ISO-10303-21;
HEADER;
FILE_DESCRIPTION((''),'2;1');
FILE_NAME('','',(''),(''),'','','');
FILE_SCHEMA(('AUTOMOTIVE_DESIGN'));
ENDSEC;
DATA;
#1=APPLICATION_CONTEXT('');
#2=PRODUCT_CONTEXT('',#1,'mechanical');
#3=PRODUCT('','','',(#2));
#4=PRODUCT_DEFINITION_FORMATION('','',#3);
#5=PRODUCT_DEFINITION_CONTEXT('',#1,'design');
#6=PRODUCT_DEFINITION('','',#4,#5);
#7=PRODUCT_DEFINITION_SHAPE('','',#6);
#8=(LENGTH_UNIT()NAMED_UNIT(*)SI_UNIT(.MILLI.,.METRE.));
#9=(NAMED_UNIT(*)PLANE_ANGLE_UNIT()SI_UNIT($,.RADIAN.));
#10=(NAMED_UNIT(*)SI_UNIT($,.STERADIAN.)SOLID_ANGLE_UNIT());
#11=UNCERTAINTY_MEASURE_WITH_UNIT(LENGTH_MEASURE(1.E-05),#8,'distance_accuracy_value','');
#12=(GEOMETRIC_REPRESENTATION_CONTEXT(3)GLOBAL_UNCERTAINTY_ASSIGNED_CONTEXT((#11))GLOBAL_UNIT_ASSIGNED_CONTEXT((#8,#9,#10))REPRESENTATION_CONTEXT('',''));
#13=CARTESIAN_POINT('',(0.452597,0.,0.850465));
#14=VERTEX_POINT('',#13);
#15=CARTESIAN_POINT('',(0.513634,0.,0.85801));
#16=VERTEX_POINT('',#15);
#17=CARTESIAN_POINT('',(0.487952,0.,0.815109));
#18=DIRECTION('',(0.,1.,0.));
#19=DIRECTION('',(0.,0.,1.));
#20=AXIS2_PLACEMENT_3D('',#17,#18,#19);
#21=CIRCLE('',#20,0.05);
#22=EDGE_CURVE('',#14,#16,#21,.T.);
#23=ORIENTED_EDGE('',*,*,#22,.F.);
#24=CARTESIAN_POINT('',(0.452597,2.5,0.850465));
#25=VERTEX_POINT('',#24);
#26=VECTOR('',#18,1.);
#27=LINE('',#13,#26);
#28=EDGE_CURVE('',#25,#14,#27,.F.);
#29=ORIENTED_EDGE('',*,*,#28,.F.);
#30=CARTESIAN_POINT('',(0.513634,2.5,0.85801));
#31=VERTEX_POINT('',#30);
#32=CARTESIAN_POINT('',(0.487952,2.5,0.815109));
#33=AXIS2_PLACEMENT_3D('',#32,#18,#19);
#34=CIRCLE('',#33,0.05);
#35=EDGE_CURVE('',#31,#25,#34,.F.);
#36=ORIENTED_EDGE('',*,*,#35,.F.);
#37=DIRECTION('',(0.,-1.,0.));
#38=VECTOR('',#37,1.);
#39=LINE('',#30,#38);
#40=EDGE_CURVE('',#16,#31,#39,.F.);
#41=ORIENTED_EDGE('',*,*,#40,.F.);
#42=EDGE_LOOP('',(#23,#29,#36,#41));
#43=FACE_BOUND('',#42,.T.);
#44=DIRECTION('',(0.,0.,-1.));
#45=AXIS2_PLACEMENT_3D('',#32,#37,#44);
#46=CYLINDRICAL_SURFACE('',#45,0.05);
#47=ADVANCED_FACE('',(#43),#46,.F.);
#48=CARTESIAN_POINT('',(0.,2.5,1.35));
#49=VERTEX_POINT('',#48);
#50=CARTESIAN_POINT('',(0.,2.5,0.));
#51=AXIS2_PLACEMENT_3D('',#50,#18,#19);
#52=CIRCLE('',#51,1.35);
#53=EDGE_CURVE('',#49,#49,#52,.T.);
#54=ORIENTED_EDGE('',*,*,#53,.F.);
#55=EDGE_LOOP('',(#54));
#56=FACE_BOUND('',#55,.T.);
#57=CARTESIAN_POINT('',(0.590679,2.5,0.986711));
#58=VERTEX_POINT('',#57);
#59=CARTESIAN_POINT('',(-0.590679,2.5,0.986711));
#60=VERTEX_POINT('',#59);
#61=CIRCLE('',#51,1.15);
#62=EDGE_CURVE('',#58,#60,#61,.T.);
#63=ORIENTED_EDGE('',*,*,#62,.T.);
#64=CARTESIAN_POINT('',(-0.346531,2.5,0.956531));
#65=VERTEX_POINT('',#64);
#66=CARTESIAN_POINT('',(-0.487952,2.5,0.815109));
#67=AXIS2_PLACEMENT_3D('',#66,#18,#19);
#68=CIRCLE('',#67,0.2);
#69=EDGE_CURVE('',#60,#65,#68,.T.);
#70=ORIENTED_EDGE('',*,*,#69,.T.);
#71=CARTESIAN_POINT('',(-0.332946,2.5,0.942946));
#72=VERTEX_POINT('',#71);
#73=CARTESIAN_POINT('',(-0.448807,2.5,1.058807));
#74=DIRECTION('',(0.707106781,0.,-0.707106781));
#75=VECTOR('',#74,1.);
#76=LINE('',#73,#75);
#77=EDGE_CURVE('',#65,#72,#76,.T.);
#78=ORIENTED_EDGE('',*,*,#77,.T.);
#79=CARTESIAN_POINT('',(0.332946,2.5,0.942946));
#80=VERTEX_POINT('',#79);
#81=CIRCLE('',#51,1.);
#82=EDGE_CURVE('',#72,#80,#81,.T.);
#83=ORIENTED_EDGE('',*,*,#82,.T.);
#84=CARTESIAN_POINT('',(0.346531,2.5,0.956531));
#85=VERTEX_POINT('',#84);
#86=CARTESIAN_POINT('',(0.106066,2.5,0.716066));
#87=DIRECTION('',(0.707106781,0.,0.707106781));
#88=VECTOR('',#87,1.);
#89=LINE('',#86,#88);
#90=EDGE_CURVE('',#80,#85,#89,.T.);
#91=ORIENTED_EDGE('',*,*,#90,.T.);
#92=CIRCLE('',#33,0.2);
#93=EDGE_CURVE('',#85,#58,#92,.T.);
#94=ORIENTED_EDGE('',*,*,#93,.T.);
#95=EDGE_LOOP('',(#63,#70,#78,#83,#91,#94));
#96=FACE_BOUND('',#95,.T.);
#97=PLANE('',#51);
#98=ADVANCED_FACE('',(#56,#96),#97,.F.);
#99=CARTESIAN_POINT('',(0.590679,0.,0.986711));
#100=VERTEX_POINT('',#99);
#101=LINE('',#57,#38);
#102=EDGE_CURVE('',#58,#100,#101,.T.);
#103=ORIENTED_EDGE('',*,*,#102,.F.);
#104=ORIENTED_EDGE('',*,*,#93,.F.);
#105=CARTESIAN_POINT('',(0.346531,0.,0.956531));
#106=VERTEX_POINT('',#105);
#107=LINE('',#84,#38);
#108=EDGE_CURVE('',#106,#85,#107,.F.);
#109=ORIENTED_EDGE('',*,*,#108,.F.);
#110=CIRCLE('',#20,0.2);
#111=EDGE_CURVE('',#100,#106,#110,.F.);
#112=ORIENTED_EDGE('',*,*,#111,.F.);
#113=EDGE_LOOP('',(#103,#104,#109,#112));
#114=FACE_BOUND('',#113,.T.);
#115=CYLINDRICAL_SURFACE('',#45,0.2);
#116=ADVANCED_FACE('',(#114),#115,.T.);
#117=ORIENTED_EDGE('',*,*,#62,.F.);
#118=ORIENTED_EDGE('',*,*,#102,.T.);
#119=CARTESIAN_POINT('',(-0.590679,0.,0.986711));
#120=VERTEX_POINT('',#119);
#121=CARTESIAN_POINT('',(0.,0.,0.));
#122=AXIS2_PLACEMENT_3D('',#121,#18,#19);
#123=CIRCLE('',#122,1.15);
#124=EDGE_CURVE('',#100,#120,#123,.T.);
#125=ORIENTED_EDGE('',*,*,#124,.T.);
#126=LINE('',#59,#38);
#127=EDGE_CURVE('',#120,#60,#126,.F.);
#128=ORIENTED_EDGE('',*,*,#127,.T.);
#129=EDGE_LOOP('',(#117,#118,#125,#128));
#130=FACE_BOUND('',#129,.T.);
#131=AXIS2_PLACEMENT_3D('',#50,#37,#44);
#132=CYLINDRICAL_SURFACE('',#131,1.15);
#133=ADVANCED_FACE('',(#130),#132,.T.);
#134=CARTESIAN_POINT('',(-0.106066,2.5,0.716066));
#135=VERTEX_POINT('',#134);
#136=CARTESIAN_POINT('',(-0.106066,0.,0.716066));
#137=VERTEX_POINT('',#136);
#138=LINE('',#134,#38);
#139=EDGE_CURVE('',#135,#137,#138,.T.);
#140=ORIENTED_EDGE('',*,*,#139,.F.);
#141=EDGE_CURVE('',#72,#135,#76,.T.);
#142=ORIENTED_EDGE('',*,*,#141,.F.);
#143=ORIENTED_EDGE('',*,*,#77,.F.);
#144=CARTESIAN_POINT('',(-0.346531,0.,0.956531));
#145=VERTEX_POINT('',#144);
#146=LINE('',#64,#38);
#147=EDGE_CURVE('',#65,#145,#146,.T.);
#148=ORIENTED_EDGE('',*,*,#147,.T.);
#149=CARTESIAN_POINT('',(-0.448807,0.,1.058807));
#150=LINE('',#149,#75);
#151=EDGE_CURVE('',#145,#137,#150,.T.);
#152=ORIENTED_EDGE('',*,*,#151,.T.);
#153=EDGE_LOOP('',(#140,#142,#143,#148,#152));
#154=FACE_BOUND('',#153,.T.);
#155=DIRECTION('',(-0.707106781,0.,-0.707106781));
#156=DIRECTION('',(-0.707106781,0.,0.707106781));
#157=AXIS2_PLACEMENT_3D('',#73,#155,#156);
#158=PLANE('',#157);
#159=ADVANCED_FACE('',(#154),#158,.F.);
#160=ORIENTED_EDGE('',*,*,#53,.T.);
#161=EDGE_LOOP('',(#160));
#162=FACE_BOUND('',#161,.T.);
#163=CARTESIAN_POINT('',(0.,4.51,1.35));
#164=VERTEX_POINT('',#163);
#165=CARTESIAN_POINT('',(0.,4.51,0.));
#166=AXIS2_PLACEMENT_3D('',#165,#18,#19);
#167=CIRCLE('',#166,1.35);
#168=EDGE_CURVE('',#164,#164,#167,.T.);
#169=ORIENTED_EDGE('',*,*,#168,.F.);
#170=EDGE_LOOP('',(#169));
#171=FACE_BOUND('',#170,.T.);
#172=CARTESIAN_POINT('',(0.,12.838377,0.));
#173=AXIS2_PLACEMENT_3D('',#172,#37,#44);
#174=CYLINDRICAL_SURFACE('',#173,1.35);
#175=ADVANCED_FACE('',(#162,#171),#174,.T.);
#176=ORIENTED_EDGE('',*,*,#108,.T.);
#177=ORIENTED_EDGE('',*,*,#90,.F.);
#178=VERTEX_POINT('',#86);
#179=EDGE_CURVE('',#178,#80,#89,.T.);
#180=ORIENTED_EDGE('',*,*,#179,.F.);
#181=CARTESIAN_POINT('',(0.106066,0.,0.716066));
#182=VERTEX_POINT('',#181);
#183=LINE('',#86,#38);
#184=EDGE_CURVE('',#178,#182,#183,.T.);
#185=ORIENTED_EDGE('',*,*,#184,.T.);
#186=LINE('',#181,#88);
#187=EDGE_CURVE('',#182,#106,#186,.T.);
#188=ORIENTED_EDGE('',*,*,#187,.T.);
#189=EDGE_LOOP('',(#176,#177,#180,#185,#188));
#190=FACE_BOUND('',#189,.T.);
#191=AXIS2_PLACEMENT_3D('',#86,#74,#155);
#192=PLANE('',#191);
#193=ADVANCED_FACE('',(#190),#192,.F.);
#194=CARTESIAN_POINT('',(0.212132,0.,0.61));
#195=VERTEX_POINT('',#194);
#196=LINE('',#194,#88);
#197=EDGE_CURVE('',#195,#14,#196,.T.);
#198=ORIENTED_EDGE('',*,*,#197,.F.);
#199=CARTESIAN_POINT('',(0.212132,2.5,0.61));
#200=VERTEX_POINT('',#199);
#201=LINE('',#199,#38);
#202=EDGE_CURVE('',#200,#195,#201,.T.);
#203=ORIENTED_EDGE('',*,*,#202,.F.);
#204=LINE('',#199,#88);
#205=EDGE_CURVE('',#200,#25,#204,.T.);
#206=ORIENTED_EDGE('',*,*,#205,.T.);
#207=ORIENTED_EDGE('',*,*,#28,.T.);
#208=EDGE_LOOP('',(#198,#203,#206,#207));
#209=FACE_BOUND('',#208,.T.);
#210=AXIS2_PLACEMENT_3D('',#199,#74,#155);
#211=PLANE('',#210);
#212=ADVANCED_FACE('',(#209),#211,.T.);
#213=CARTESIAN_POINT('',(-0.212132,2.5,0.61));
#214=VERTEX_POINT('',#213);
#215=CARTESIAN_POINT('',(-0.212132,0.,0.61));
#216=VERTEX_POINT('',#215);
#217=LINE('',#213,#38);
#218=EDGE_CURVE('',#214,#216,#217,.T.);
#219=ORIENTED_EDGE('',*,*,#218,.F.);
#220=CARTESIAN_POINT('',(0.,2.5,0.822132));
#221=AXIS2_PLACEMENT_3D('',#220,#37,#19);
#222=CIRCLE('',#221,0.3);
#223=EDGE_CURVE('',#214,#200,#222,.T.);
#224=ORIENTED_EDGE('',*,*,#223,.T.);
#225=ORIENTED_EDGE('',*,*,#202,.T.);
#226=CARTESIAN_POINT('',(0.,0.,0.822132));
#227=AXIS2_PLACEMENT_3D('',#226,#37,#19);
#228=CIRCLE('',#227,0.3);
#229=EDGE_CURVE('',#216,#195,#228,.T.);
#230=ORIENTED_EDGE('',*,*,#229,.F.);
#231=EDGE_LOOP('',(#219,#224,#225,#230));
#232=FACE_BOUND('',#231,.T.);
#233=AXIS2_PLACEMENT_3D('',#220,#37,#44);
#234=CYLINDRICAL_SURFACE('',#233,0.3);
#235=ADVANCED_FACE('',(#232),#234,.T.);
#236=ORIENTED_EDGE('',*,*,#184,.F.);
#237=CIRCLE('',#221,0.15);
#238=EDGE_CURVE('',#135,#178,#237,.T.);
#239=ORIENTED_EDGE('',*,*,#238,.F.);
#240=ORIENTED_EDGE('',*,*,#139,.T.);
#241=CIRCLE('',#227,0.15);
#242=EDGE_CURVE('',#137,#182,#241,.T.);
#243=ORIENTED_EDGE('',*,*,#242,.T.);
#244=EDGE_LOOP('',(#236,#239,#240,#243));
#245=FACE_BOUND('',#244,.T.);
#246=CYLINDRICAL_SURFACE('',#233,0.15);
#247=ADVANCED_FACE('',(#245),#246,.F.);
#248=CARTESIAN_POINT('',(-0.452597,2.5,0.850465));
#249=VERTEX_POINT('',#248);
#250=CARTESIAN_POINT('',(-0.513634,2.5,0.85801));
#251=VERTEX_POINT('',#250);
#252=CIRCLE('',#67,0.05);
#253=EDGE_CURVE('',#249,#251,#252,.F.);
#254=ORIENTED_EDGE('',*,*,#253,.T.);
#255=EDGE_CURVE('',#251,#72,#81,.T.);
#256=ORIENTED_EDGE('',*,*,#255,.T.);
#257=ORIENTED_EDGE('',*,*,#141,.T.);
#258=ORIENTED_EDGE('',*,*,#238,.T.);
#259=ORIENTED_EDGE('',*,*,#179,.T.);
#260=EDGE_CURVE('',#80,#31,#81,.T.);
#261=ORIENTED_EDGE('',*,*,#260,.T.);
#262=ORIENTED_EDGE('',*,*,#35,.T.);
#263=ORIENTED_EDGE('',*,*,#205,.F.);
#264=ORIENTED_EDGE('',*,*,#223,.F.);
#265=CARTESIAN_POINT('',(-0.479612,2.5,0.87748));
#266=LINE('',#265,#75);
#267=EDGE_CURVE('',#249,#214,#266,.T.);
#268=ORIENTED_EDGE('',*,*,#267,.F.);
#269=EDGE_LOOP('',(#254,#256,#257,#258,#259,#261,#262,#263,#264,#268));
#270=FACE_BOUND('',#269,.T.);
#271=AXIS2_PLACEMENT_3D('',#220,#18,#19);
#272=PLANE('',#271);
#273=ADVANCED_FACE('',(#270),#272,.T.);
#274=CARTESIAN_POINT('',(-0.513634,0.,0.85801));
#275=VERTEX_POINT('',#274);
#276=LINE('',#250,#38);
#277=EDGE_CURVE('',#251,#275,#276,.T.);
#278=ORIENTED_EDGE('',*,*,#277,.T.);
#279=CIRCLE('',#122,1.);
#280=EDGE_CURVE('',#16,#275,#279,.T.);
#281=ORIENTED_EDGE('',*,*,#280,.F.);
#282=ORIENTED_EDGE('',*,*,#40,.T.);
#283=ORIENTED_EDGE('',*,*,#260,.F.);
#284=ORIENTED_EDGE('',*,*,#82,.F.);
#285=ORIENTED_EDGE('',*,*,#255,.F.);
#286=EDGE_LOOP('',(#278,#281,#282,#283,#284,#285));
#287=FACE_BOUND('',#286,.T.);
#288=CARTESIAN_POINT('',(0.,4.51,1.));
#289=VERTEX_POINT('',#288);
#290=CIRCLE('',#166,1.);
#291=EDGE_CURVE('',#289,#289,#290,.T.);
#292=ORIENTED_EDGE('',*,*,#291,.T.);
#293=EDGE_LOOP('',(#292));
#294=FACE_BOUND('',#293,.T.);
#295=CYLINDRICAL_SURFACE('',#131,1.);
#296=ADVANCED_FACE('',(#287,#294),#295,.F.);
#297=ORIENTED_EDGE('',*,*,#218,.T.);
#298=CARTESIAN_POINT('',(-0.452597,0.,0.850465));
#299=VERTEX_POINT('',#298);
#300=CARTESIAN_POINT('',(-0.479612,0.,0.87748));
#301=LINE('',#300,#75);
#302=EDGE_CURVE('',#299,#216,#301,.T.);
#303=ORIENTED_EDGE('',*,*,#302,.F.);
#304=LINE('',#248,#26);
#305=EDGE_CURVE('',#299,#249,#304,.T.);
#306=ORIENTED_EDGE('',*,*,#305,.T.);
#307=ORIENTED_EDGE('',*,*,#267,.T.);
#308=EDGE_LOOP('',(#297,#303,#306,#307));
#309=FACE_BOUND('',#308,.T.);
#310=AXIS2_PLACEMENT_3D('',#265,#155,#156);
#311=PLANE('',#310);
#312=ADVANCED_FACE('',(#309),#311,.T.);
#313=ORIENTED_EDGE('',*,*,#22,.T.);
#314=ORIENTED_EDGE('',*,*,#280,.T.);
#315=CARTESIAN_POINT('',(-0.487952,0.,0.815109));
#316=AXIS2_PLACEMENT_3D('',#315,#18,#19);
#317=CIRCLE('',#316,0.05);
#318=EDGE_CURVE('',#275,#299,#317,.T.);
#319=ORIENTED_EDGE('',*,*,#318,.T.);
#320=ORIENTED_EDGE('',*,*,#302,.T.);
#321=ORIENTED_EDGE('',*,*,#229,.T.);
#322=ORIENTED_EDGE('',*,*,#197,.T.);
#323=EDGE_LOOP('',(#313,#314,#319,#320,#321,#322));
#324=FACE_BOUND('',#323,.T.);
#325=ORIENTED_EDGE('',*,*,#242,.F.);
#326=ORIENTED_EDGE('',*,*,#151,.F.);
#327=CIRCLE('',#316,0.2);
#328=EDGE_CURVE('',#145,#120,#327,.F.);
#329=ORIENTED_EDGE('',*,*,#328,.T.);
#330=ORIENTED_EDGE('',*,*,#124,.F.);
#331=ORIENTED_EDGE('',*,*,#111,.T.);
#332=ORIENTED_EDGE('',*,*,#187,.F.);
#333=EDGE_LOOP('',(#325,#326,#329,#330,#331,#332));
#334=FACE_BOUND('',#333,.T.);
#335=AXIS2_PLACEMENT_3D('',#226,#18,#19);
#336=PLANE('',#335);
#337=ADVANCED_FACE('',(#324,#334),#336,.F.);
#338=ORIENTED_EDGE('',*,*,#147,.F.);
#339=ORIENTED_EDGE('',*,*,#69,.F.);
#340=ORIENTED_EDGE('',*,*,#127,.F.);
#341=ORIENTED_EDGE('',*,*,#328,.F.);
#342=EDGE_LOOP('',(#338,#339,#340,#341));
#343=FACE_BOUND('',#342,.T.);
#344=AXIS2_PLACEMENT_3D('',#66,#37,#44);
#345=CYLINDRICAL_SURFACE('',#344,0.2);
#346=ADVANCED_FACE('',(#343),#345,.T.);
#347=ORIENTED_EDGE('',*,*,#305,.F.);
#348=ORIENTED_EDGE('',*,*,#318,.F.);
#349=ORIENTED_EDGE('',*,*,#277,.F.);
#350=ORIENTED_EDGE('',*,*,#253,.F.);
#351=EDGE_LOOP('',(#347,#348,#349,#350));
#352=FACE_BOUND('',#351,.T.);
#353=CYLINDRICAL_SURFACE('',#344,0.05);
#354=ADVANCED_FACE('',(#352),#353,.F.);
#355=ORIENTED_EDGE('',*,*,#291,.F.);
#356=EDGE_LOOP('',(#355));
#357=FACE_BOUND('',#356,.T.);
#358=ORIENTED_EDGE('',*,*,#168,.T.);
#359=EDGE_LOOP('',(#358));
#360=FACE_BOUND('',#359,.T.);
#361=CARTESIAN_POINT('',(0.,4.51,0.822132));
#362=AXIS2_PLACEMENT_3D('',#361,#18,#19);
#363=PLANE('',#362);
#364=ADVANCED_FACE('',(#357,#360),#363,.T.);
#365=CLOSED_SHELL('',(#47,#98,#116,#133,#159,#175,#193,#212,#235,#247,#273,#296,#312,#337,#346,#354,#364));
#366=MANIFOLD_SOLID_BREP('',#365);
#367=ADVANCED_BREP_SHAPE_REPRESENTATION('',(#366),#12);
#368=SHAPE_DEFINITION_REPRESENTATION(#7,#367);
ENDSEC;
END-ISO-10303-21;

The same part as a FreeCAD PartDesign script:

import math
import FreeCAD as App
import Part
import Sketcher


def edges_at(feature, points):
    """Names of the edges that pass closest to the given points."""
    edges = feature.Shape.Edges
    near = lambda p: min(range(len(edges)), key=lambda i: edges[i].distToShape(Part.Vertex(*p))[0])
    return sorted({f"Edge{near(p) + 1}" for p in points})

doc = App.newDocument("Part")
body = doc.addObject("PartDesign::Body", "Body")

# Sketch on XZ plane
sketch1 = doc.addObject("Sketcher::SketchObject", "Sketch")
body.addObject(sketch1)
sketch1.AttachmentSupport = (doc.XZ_Plane, [""])
sketch1.MapMode = "FlatFace"
sketch1.addGeometry(Part.LineSegment(App.Vector(-0.45, 1.06, 0), App.Vector(-0.11, 0.72, 0)), False)
sketch1.addGeometry(Part.ArcOfCircle(Part.Circle(App.Vector(0, 0.82, 0), App.Vector(0, 0, 1), 0.15), math.radians(-135), math.radians(-45)), False)
sketch1.addGeometry(Part.LineSegment(App.Vector(0.11, 0.72, 0), App.Vector(0.45, 1.06, 0)), False)
sketch1.addGeometry(Part.ArcOfCircle(Part.Circle(App.Vector(0, 0, 0), App.Vector(0, 0, 1), 1.15), math.radians(113), math.radians(427)), False)
sketch1.addGeometry(Part.LineSegment(App.Vector(-0.21, 0.61, 0), App.Vector(-0.48, 0.88, 0)), False)
sketch1.addGeometry(Part.ArcOfCircle(Part.Circle(App.Vector(0, 0, 0), App.Vector(0, 0, 1), 1), math.radians(119), math.radians(421)), False)
sketch1.addGeometry(Part.LineSegment(App.Vector(0.48, 0.88, 0), App.Vector(0.21, 0.61, 0)), False)
sketch1.addGeometry(Part.ArcOfCircle(Part.Circle(App.Vector(0, 0.82, 0), App.Vector(0, 0, 1), 0.3), math.radians(-135), math.radians(-45)), False)
sketch1.addConstraint(Sketcher.Constraint("Tangent", 0, 2, 1, 1))
sketch1.addConstraint(Sketcher.Constraint("Tangent", 1, 2, 2, 1))
sketch1.addConstraint(Sketcher.Constraint("Coincident", 2, 2, 3, 2))
sketch1.addConstraint(Sketcher.Constraint("Coincident", 3, 1, 0, 1))
sketch1.addConstraint(Sketcher.Constraint("Coincident", 4, 2, 5, 1))
sketch1.addConstraint(Sketcher.Constraint("Coincident", 5, 2, 6, 1))
sketch1.addConstraint(Sketcher.Constraint("Tangent", 6, 2, 7, 2))
sketch1.addConstraint(Sketcher.Constraint("Tangent", 7, 1, 4, 1))
sketch1.addConstraint(Sketcher.Constraint("Coincident", 3, 3, -1, 1))
sketch1.addConstraint(Sketcher.Constraint("Coincident", 5, 3, -1, 1))
sketch1.addConstraint(Sketcher.Constraint("Coincident", 7, 3, 1, 3))
sketch1.addConstraint(Sketcher.Constraint("Symmetric", 0, 2, 1, 2, -2))
sketch1.addConstraint(Sketcher.Constraint("Perpendicular", 0, 2))
sketch1.addConstraint(Sketcher.Constraint("Perpendicular", 2, 4))
sketch1.addConstraint(Sketcher.Constraint("Perpendicular", 4, 6))
sketch1.addConstraint(Sketcher.Constraint("Radius", 5, 1.0))
sketch1.addConstraint(Sketcher.Constraint("Radius", 7, 0.3))
sketch1.addConstraint(Sketcher.Constraint("Radius", 1, 0.15))
sketch1.addConstraint(Sketcher.Constraint("Radius", 3, 1.15))
sketch1.addConstraint(Sketcher.Constraint("DistanceY", -1, 1, 6, 2, 0.61))
pad1 = doc.addObject("PartDesign::Pad", "Pad")
body.addObject(pad1)
pad1.Profile = sketch1
pad1.Length = 2.5
pad1.Reversed = True
doc.recompute()

fillet = doc.addObject("PartDesign::Fillet", "Fillet")
body.addObject(fillet)
fillet.Base = (pad1, edges_at(pad1, [(0.48, 1.25, 0.877), (-0.48, 1.25, 0.877)]))
fillet.Radius = 0.05
doc.recompute()

fillet2 = doc.addObject("PartDesign::Fillet", "Fillet001")
body.addObject(fillet2)
fillet2.Base = (fillet, edges_at(fillet, [(-0.449, 1.25, 1.059), (0.449, 1.25, 1.059)]))
fillet2.Radius = 0.2

# Sketch on XZ plane
sketch2 = doc.addObject("Sketcher::SketchObject", "Sketch001")
body.addObject(sketch2)
sketch2.AttachmentSupport = (doc.XZ_Plane, [""])
sketch2.MapMode = "FlatFace"
sketch2.AttachmentOffset = App.Placement(App.Vector(0, 0, -2.5), App.Rotation())
sketch2.addGeometry(Part.Circle(App.Vector(0, 0, 0), App.Vector(0, 0, 1), 1.4), False)
sketch2.addGeometry(Part.Circle(App.Vector(0, 0, 0), App.Vector(0, 0, 1), 1), False)
sketch2.addConstraint(Sketcher.Constraint("Coincident", 0, 3, -1, 1))
sketch2.addConstraint(Sketcher.Constraint("Coincident", 1, 3, -1, 1))
sketch2.addConstraint(Sketcher.Constraint("Diameter", 1, 2.0))
sketch2.addConstraint(Sketcher.Constraint("Diameter", 0, 2.7))
pad2 = doc.addObject("PartDesign::Pad", "Pad001")
body.addObject(pad2)
pad2.Profile = sketch2
pad2.Length = 2.01
pad2.Reversed = True

doc.recompute()
